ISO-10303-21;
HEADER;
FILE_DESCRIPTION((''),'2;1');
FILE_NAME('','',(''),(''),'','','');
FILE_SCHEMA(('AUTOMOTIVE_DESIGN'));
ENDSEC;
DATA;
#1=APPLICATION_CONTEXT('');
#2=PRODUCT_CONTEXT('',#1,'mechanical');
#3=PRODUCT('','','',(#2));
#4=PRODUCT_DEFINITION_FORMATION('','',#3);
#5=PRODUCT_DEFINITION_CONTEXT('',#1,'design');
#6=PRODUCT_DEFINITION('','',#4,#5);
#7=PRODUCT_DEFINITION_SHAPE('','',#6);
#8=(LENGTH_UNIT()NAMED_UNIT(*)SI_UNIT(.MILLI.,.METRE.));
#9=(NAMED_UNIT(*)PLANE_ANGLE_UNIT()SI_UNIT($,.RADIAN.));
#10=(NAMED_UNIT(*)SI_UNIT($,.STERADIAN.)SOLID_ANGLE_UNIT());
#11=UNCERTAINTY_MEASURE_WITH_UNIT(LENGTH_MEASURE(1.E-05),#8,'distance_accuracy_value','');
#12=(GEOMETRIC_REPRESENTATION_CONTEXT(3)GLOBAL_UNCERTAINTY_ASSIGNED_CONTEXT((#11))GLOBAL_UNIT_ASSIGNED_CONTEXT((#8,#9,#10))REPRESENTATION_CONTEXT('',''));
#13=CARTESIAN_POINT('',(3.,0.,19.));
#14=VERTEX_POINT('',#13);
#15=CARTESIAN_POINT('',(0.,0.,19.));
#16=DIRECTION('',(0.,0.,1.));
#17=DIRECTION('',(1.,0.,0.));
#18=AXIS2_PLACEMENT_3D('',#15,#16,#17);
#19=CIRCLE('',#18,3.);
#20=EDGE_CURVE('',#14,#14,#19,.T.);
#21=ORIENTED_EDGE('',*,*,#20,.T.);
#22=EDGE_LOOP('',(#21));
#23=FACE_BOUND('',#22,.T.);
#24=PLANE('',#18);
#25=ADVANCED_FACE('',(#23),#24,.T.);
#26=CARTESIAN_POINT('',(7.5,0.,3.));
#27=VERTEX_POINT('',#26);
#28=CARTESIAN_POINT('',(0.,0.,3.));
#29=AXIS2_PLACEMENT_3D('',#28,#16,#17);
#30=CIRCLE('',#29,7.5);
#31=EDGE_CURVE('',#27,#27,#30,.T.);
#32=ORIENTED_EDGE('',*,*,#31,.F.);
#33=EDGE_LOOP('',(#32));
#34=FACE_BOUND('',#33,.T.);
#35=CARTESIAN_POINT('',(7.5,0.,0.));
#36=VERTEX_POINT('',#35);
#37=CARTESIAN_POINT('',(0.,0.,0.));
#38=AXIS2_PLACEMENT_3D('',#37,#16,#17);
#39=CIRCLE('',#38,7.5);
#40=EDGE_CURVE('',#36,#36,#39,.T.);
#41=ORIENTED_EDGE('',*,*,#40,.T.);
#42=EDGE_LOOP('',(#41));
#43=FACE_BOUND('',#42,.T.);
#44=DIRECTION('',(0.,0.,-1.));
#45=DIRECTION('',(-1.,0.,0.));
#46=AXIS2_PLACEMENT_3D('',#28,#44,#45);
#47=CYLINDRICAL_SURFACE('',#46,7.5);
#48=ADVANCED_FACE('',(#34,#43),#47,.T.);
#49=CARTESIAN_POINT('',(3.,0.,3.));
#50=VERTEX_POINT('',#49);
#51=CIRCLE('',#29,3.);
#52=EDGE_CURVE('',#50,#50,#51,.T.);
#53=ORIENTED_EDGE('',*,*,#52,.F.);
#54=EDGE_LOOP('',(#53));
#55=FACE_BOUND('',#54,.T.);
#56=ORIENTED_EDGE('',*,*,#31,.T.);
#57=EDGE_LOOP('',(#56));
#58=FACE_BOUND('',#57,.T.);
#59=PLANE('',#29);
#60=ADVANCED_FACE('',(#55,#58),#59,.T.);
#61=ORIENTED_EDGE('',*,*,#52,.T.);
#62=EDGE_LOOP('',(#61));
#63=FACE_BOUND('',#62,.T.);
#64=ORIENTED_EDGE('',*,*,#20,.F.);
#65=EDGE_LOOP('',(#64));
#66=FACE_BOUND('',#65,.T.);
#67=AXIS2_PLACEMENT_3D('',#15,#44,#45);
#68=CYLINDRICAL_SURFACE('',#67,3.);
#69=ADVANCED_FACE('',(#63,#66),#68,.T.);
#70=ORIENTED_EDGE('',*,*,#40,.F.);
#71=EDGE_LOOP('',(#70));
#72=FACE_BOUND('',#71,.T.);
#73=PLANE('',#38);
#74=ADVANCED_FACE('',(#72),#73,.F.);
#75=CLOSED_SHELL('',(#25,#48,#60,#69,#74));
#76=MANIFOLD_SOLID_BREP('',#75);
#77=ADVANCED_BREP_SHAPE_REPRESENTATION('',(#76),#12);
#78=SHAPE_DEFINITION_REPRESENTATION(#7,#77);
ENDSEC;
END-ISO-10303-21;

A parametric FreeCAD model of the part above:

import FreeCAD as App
import Part
import Sketcher

doc = App.newDocument("Part")
params = doc.addObject("Spreadsheet::Sheet", "Params")
for row, (alias, value) in enumerate([
    ("sketch1_diameter", "6 mm"),
    ("pad1_length", "19 mm"),
    ("sketch2_diameter", "15 mm"),
    ("sketch2_diameter2", "6 mm"),
    ("pad2_length", "3 mm"),
], start=1):
    params.set(f"A{row}", alias)
    params.set(f"B{row}", "=" + value)
    params.setAlias(f"B{row}", alias)

body = doc.addObject("PartDesign::Body", "Body")

# Sketch on XY plane
sketch1 = body.newObject("Sketcher::SketchObject", "Sketch")
sketch1.AttachmentSupport = (doc.getObject("XY_Plane"), [""])
sketch1.MapMode = "FlatFace"
sketch1.addGeometry(Part.Circle(App.Vector(0, 0, 0), App.Vector(0, 0, 1), 3), False)
sketch1.addConstraint([
    Sketcher.Constraint("Coincident", 0, 3, -1, 1),
    Sketcher.Constraint("Diameter", 0, 6.0),
])
sketch1.setExpression("Constraints[1]", "Params.sketch1_diameter")
pad1 = body.newObject("PartDesign::Pad", "Pad")
pad1.Profile = sketch1
pad1.setExpression("Length", "Params.pad1_length")

# Sketch on XY plane
sketch2 = body.newObject("Sketcher::SketchObject", "Sketch001")
sketch2.AttachmentSupport = (doc.getObject("XY_Plane"), [""])
sketch2.MapMode = "FlatFace"
sketch2.addGeometry([
    Part.Circle(App.Vector(0, 0, 0), App.Vector(0, 0, 1), 7.5),
    Part.Circle(App.Vector(0, 0, 0), App.Vector(0, 0, 1), 3),
], False)
sketch2.addConstraint([
    Sketcher.Constraint("Coincident", 0, 3, -1, 1),
    Sketcher.Constraint("Coincident", 1, 3, -1, 1),
    Sketcher.Constraint("Diameter", 0, 15.0),
    Sketcher.Constraint("Diameter", 1, 6.0),
])
sketch2.setExpression("Constraints[2]", "Params.sketch2_diameter")
sketch2.setExpression("Constraints[3]", "Params.sketch2_diameter2")
pad2 = body.newObject("PartDesign::Pad", "Pad001")
pad2.Profile = sketch2
pad2.setExpression("Length", "Params.pad2_length")

doc.recompute()
